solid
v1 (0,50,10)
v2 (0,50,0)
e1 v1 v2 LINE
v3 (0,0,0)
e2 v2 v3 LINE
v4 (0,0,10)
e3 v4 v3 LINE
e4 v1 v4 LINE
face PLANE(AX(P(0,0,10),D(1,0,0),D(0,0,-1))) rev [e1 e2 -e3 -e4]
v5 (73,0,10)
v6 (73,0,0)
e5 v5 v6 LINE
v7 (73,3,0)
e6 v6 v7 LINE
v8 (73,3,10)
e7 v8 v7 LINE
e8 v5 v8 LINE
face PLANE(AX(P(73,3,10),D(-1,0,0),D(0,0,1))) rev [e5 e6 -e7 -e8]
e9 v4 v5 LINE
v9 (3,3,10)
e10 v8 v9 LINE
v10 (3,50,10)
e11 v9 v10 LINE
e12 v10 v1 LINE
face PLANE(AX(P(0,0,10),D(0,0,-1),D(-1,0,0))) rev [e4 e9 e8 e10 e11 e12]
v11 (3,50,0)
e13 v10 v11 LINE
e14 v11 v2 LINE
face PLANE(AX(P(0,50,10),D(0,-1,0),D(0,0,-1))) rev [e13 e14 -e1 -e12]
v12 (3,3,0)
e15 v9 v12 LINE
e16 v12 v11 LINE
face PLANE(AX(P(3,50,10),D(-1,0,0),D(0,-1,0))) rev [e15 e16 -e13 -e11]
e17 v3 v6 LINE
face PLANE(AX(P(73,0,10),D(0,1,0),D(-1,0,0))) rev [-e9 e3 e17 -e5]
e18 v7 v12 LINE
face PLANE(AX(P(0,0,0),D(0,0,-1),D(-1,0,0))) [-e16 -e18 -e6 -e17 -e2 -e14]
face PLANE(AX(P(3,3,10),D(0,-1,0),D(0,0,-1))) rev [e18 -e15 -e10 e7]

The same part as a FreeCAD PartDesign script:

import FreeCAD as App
import Part
import Sketcher

V = App.Vector
Q = App.Units.Quantity


def add_polygon(sketch, points):
    """Adds a closed chain of lines whose ends are joined by coincident constraints."""
    first, n = sketch.GeometryCount, len(points)
    for a, b in zip(points, points[1:] + points[:1]):
        sketch.addGeometry(Part.LineSegment(App.Vector(*a, 0), App.Vector(*b, 0)), False)
    for i in range(n):
        sketch.addConstraint(Sketcher.Constraint("Coincident", first + i, 2, first + (i + 1) % n, 1))

doc = App.newDocument("Part")
body = doc.addObject("PartDesign::Body", "Body")

# Sketch on XY plane
sketch1 = body.newObject("Sketcher::SketchObject", "Sketch")
sketch1.AttachmentSupport = (doc.getObject("XY_Plane"), [""])
sketch1.MapMode = "FlatFace"
add_polygon(sketch1, [(0, 50), (0, 0), (73, 0), (73, 3), (3, 3), (3, 50)])  # lines 0-5
sketch1.addConstraint(Sketcher.Constraint("Vertical", 0))
sketch1.addConstraint(Sketcher.Constraint("Horizontal", 1))
sketch1.addConstraint(Sketcher.Constraint("Vertical", 2))
sketch1.addConstraint(Sketcher.Constraint("Horizontal", 3))
sketch1.addConstraint(Sketcher.Constraint("Vertical", 4))
sketch1.addConstraint(Sketcher.Constraint("Horizontal", 5))
sketch1.addConstraint(Sketcher.Constraint("Coincident", 0, 2, -1, 1))
sketch1.addConstraint(Sketcher.Constraint("Equal", 5, 2))
sketch1.addConstraint(Sketcher.Constraint("DistanceX", 1, 1, 1, 2, Q("73 mm")))
sketch1.addConstraint(Sketcher.Constraint("DistanceX", 3, 2, 3, 1, Q("70 mm")))
sketch1.addConstraint(Sketcher.Constraint("DistanceY", 0, 2, 0, 1, Q("50 mm")))
pad1 = body.newObject("PartDesign::Pad", "Pad")
pad1.Profile = sketch1
pad1.Length = 10

doc.recompute()
